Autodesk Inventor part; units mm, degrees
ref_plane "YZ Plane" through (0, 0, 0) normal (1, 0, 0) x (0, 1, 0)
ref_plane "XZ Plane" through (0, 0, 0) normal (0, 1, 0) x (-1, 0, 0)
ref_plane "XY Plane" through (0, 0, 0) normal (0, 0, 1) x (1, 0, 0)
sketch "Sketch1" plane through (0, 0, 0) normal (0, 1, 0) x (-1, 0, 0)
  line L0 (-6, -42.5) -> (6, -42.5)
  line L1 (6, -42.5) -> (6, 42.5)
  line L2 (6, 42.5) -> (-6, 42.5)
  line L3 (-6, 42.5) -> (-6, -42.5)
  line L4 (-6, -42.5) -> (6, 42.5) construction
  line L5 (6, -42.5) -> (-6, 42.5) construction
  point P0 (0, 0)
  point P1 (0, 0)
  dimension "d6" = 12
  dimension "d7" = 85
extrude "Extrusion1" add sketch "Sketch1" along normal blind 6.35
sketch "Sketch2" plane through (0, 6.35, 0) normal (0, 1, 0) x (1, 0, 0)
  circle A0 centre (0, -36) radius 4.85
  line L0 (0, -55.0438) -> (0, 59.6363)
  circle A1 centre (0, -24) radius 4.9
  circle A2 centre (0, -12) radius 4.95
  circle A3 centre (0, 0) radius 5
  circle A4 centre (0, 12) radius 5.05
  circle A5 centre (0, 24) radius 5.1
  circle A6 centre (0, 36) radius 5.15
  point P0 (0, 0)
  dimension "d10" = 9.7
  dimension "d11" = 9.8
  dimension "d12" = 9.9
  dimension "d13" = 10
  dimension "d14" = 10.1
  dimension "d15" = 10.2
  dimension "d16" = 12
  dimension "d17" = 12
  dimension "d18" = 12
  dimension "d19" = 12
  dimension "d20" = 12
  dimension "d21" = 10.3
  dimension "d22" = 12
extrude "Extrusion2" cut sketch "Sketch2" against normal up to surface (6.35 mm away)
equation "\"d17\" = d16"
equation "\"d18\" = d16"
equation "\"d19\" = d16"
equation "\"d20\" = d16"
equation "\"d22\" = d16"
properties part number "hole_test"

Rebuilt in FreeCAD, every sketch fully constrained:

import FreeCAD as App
import Part
import Sketcher
from FreeCAD import Vector


def add_polygon(sketch, points):
    """Adds a closed chain of lines whose ends are joined by coincident constraints."""
    first, n = sketch.GeometryCount, len(points)
    for a, b in zip(points, points[1:] + points[:1]):
        sketch.addGeometry(Part.LineSegment(App.Vector(*a, 0), App.Vector(*b, 0)), False)
    for i in range(n):
        sketch.addConstraint(Sketcher.Constraint("Coincident", first + i, 2, first + (i + 1) % n, 1))

doc = App.newDocument("Part")
body = doc.addObject("PartDesign::Body", "Body")

# Sketch on XZ plane
sketch1 = doc.addObject("Sketcher::SketchObject", "Sketch")
body.addObject(sketch1)
sketch1.AttachmentSupport = (doc.XZ_Plane, [""])
sketch1.MapMode = "FlatFace"
add_polygon(sketch1, [(6, 42.5), (6, -42.5), (-6, -42.5), (-6, 42.5)])  # lines 0-3
sketch1.addConstraint([
    Sketcher.Constraint("Vertical", 0),
    Sketcher.Constraint("Horizontal", 1),
    Sketcher.Constraint("Vertical", 2),
    Sketcher.Constraint("Horizontal", 3),
    Sketcher.Constraint("Symmetric", 0, 2, 2, 2, -1, 1),
    Sketcher.Constraint("DistanceX", 1, 2, 1, 1, 12.0),
    Sketcher.Constraint("DistanceY", 0, 2, 0, 1, 85.0),
])
pad1 = doc.addObject("PartDesign::Pad", "Pad")
body.addObject(pad1)
pad1.Profile = sketch1
pad1.Length = 6.35
pad1.Reversed = True

# Sketch on XZ plane
sketch2 = doc.addObject("Sketcher::SketchObject", "Sketch001")
body.addObject(sketch2)
sketch2.AttachmentSupport = (doc.XZ_Plane, [""])
sketch2.MapMode = "FlatFace"
sketch2.AttachmentOffset = App.Placement(Vector(0, 0, -6.35), App.Rotation())
sketch2.addGeometry([
    Part.Circle(Vector(0, 36, 0), Vector(0, 0, 1), 4.85),  # 0
    Part.Circle(Vector(0, -36, 0), Vector(0, 0, 1), 5.15),  # 1
    Part.Circle(Vector(0, -24, 0), Vector(0, 0, 1), 5.1),  # 2
    Part.Circle(Vector(0, -12, 0), Vector(0, 0, 1), 5.05),  # 3
    Part.Circle(Vector(0, 0, 0), Vector(0, 0, 1), 5),  # 4
    Part.Circle(Vector(0, 12, 0), Vector(0, 0, 1), 4.95),  # 5
    Part.Circle(Vector(0, 24, 0), Vector(0, 0, 1), 4.9),  # 6
], False)
sketch2.addConstraint([
    Sketcher.Constraint("Coincident", 4, 3, -1, 1),
    Sketcher.Constraint("Symmetric", 0, 3, 1, 3, -1, 1),
    Sketcher.Constraint("Symmetric", 3, 3, 5, 3, -1, 1),
    Sketcher.Constraint("Symmetric", 2, 3, 6, 3, -1, 1),
    Sketcher.Constraint("PointOnObject", 0, 3, -2),
    Sketcher.Constraint("PointOnObject", 2, 3, -2),
    Sketcher.Constraint("PointOnObject", 3, 3, -2),
    Sketcher.Constraint("Diameter", 4, 10.0),
    Sketcher.Constraint("Diameter", 0, 9.7),
    Sketcher.Constraint("Diameter", 1, 10.3),
    Sketcher.Constraint("Diameter", 2, 10.2),
    Sketcher.Constraint("Diameter", 3, 10.1),
    Sketcher.Constraint("Diameter", 5, 9.9),
    Sketcher.Constraint("Diameter", 6, 9.8),
    Sketcher.Constraint("DistanceY", 3, 3, -1, 1, 12.0),
    Sketcher.Constraint("DistanceY", 1, 3, 2, 3, 12.0),
    Sketcher.Constraint("DistanceY", 2, 3, 3, 3, 12.0),
])
pocket1 = doc.addObject("PartDesign::Pocket", "Pocket")
body.addObject(pocket1)
pocket1.Profile = sketch2
pocket1.Length = 6.35
pocket1.Reversed = True

doc.recompute()
